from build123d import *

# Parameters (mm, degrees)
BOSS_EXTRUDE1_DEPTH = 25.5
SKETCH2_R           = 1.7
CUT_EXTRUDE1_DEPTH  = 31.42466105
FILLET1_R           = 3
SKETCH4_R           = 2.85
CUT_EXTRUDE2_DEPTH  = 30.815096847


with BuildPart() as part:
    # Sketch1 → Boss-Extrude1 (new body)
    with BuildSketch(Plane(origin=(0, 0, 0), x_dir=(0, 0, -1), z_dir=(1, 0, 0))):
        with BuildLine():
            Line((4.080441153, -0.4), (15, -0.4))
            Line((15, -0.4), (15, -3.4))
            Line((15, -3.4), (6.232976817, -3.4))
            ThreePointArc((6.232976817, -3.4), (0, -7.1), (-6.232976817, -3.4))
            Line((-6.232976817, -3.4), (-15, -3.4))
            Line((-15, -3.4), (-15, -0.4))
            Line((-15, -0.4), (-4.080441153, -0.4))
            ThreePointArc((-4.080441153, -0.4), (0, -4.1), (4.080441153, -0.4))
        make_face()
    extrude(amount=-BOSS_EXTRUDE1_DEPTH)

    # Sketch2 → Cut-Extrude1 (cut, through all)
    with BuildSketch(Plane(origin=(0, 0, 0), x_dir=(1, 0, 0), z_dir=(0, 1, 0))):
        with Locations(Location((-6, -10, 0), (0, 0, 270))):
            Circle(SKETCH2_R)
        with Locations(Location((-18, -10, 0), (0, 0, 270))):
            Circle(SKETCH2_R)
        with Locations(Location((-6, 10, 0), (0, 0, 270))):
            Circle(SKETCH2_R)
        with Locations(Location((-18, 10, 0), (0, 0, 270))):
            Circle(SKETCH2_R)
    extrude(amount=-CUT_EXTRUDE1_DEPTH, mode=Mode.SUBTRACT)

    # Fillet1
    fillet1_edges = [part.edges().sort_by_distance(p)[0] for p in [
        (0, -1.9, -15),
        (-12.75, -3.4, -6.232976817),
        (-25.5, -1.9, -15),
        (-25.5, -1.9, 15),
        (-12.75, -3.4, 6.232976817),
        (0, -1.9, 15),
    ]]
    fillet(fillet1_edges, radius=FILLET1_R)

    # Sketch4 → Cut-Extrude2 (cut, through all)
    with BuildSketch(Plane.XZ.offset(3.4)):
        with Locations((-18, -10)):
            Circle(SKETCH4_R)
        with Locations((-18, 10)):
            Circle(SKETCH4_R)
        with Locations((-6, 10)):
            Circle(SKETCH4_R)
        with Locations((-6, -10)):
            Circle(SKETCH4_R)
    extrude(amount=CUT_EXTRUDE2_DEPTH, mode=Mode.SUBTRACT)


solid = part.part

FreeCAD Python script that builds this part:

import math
import FreeCAD as App
import Part
import Sketcher
Q = App.Units.Quantity


def edges_at(feature, points):
    """Names of the edges that pass closest to the given points."""
    edges = feature.Shape.Edges
    near = lambda p: min(range(len(edges)), key=lambda i: edges[i].distToShape(Part.Vertex(*p))[0])
    return sorted({f"Edge{near(p) + 1}" for p in points})

doc = App.newDocument("Part")
params = doc.addObject("Spreadsheet::Sheet", "Params")
for row, (alias, value) in enumerate([
    ("sketch1_radius", "4.1 mm"),
    ("sketch1_radius2", "7.1 mm"),
    ("sketch1_width", "3 mm"),
    ("pad1_length", "25.5 mm"),
    ("sketch2_diameter", "3.4 mm"),
    ("fillet_radius", "3 mm"),
    ("sketch3_diameter", "5.7 mm"),
], start=1):
    params.set(f"A{row}", alias)
    params.set(f"B{row}", "=" + value)
    params.setAlias(f"B{row}", alias)

body = doc.addObject("PartDesign::Body", "Body")

sketch1 = body.newObject("Sketcher::SketchObject", "Sketch")
sketch1.AttachmentSupport = (doc.getObject("YZ_Plane"), [""])
sketch1.MapMode = "FlatFace"
sketch1.addGeometry(Part.LineSegment(App.Vector(-0.4, -15, 0), App.Vector(-0.4, -4.1, 0)), False)
sketch1.addGeometry(Part.ArcOfCircle(Part.Circle(App.Vector(0, 0, 0), App.Vector(0, 0, 1), 4.1), math.radians(96), math.radians(264)), False)
sketch1.addGeometry(Part.LineSegment(App.Vector(-0.4, 4.1, 0), App.Vector(-0.4, 15, 0)), False)
sketch1.addGeometry(Part.LineSegment(App.Vector(-0.4, 15, 0), App.Vector(-3.4, 15, 0)), False)
sketch1.addGeometry(Part.LineSegment(App.Vector(-3.4, 15, 0), App.Vector(-3.4, 6.2, 0)), False)
sketch1.addGeometry(Part.ArcOfCircle(Part.Circle(App.Vector(0, 0, 0), App.Vector(0, 0, 1), 7.1), math.radians(119), math.radians(241)), False)
sketch1.addGeometry(Part.LineSegment(App.Vector(-3.4, -6.2, 0), App.Vector(-3.4, -15, 0)), False)
sketch1.addGeometry(Part.LineSegment(App.Vector(-3.4, -15, 0), App.Vector(-0.4, -15, 0)), False)
sketch1.addConstraint(Sketcher.Constraint("Coincident", 0, 2, 1, 2))
sketch1.addConstraint(Sketcher.Constraint("Coincident", 1, 1, 2, 1))
sketch1.addConstraint(Sketcher.Constraint("Coincident", 2, 2, 3, 1))
sketch1.addConstraint(Sketcher.Constraint("Coincident", 3, 2, 4, 1))
sketch1.addConstraint(Sketcher.Constraint("Coincident", 4, 2, 5, 1))
sketch1.addConstraint(Sketcher.Constraint("Coincident", 5, 2, 6, 1))
sketch1.addConstraint(Sketcher.Constraint("Coincident", 6, 2, 7, 1))
sketch1.addConstraint(Sketcher.Constraint("Coincident", 7, 2, 0, 1))
sketch1.addConstraint(Sketcher.Constraint("Vertical", 0))
sketch1.addConstraint(Sketcher.Constraint("Vertical", 2))
sketch1.addConstraint(Sketcher.Constraint("Horizontal", 3))
sketch1.addConstraint(Sketcher.Constraint("Vertical", 4))
sketch1.addConstraint(Sketcher.Constraint("Vertical", 6))
sketch1.addConstraint(Sketcher.Constraint("Horizontal", 7))
sketch1.addConstraint(Sketcher.Constraint("Coincident", 1, 3, -1, 1))
sketch1.addConstraint(Sketcher.Constraint("Coincident", 5, 3, -1, 1))
sketch1.addConstraint(Sketcher.Constraint("Symmetric", 3, 2, 6, 2, -1))
sketch1.addConstraint(Sketcher.Constraint("Vertical", 0, 2, 1, 1))
sketch1.addConstraint(Sketcher.Constraint("Radius", 1, Q("4.1 mm")))
sketch1.addConstraint(Sketcher.Constraint("Radius", 5, Q("7.1 mm")))
sketch1.addConstraint(Sketcher.Constraint("DistanceX", 3, 2, 3, 1, Q("3 mm")))
sketch1.addConstraint(Sketcher.Constraint("DistanceY", -1, 1, 2, 2, Q("15 mm")))
sketch1.addConstraint(Sketcher.Constraint("DistanceX", 0, 2, -1, 1, Q("0.4 mm")))
sketch1.setExpression("Constraints[18]", "Params.sketch1_radius")
sketch1.setExpression("Constraints[19]", "Params.sketch1_radius2")
sketch1.setExpression("Constraints[20]", "Params.sketch1_width")
pad1 = body.newObject("PartDesign::Pad", "Pad")
pad1.Profile = sketch1
pad1.setExpression("Length", "Params.pad1_length")
pad1.Reversed = True

sketch2 = body.newObject("Sketcher::SketchObject", "Sketch001")
sketch2.AttachmentSupport = (doc.getObject("XZ_Plane"), [""])
sketch2.MapMode = "FlatFace"
sketch2.addGeometry(Part.Circle(App.Vector(-6, 10, 0), App.Vector(0, 0, 1), 1.7), False)
sketch2.addGeometry(Part.Circle(App.Vector(-18, 10, 0), App.Vector(0, 0, 1), 1.7), False)
sketch2.addGeometry(Part.Circle(App.Vector(-6, -10, 0), App.Vector(0, 0, 1), 1.7), False)
sketch2.addGeometry(Part.Circle(App.Vector(-18, -10, 0), App.Vector(0, 0, 1), 1.7), False)
sketch2.addConstraint(Sketcher.Constraint("Equal", 0, 1))
sketch2.addConstraint(Sketcher.Constraint("Equal", 1, 2))
sketch2.addConstraint(Sketcher.Constraint("Equal", 2, 3))
sketch2.addConstraint(Sketcher.Constraint("Symmetric", 0, 3, 2, 3, -1))
sketch2.addConstraint(Sketcher.Constraint("Symmetric", 1, 3, 3, 3, -1))
sketch2.addConstraint(Sketcher.Constraint("Horizontal", 0, 3, 1, 3))
sketch2.addConstraint(Sketcher.Constraint("Diameter", 0, Q("3.4 mm")))
sketch2.addConstraint(Sketcher.Constraint("DistanceX", 0, 3, -1, 1, Q("6 mm")))
sketch2.addConstraint(Sketcher.Constraint("DistanceY", -1, 1, 0, 3, Q("10 mm")))
sketch2.addConstraint(Sketcher.Constraint("DistanceX", 1, 3, -1, 1, Q("18 mm")))
sketch2.setExpression("Constraints[6]", "Params.sketch2_diameter")
pocket1 = body.newObject("PartDesign::Pocket", "Pocket")
pocket1.Profile = sketch2
pocket1.Type = "ThroughAll"
pocket1.Reversed = True
doc.recompute()

fillet = body.newObject("PartDesign::Fillet", "Fillet")
fillet.Base = (pocket1, edges_at(pocket1, [
    (0, -1.9, -15),
    (-12.75, -3.4, -6.233),
    (-25.5, -1.9, -15),
    (-25.5, -1.9, 15),
    (-12.75, -3.4, 6.233),
    (0, -1.9, 15),
]))
fillet.setExpression("Radius", "Params.fillet_radius")

sketch3 = body.newObject("Sketcher::SketchObject", "Sketch002")
sketch3.AttachmentSupport = (doc.getObject("XZ_Plane"), [""])
sketch3.MapMode = "FlatFace"
sketch3.AttachmentOffset = App.Placement(App.Vector(0, 0, 3.4), App.Rotation())
sketch3.addGeometry(Part.Circle(App.Vector(-18, -10, 0), App.Vector(0, 0, 1), 2.9), False)
sketch3.addGeometry(Part.Circle(App.Vector(-18, 10, 0), App.Vector(0, 0, 1), 2.9), False)
sketch3.addGeometry(Part.Circle(App.Vector(-6, 10, 0), App.Vector(0, 0, 1), 2.9), False)
sketch3.addGeometry(Part.Circle(App.Vector(-6, -10, 0), App.Vector(0, 0, 1), 2.9), False)
sketch3.addConstraint(Sketcher.Constraint("Equal", 0, 1))
sketch3.addConstraint(Sketcher.Constraint("Equal", 1, 2))
sketch3.addConstraint(Sketcher.Constraint("Equal", 2, 3))
sketch3.addConstraint(Sketcher.Constraint("Symmetric", 0, 3, 1, 3, -1))
sketch3.addConstraint(Sketcher.Constraint("Symmetric", 2, 3, 3, 3, -1))
sketch3.addConstraint(Sketcher.Constraint("Horizontal", 1, 3, 2, 3))
sketch3.addConstraint(Sketcher.Constraint("Diameter", 0, Q("5.7 mm")))
sketch3.addConstraint(Sketcher.Constraint("DistanceX", 0, 3, -1, 1, Q("18 mm")))
sketch3.addConstraint(Sketcher.Constraint("DistanceY", 0, 3, -1, 1, Q("10 mm")))
sketch3.addConstraint(Sketcher.Constraint("DistanceX", 2, 3, -1, 1, Q("6 mm")))
sketch3.setExpression("Constraints[6]", "Params.sketch3_diameter")
pocket2 = body.newObject("PartDesign::Pocket", "Pocket001")
pocket2.Profile = sketch3
pocket2.Type = "ThroughAll"
pocket2.Reversed = True

doc.recompute()
